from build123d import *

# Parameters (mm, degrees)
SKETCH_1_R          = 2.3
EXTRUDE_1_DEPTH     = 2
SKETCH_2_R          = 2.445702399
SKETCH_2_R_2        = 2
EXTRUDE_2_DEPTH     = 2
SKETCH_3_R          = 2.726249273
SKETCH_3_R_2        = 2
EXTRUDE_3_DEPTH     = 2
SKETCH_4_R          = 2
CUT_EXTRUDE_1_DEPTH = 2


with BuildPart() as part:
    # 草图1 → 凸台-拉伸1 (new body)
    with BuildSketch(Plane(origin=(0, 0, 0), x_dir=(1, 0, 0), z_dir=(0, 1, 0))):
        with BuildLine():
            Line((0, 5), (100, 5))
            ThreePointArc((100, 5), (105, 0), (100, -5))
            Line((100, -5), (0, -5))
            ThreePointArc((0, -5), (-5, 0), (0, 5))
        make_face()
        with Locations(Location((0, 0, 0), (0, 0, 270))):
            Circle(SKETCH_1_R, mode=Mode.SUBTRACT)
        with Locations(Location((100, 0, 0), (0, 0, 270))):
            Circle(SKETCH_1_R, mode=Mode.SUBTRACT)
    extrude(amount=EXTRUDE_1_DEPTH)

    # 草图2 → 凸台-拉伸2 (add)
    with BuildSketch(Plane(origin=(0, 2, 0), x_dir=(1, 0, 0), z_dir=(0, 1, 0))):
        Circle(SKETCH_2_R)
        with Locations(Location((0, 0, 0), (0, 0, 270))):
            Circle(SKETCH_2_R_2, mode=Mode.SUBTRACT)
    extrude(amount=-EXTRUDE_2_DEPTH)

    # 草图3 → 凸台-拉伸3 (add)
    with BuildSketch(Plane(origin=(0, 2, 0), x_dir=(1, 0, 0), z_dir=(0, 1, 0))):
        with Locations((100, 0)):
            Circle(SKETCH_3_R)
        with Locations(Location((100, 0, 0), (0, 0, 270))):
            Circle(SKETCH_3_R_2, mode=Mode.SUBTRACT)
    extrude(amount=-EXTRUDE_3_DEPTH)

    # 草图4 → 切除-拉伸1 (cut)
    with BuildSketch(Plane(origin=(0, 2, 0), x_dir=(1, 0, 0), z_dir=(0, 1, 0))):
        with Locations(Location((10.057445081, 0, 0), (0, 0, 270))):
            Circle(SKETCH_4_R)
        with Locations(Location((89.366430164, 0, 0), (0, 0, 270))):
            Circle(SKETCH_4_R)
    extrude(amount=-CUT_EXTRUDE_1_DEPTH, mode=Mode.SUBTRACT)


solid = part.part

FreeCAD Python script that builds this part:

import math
import FreeCAD as App
import Part
import Sketcher

V = App.Vector
Q = App.Units.Quantity

doc = App.newDocument("Part")
body = doc.addObject("PartDesign::Body", "Body")

sketch1 = body.newObject("Sketcher::SketchObject", "Sketch")
sketch1.AttachmentSupport = (doc.getObject("XZ_Plane"), [""])
sketch1.MapMode = "FlatFace"
sketch1.addGeometry([
    Part.LineSegment(V(100, -5, 0), V(0, -5, 0)),
    Part.ArcOfCircle(Part.Circle(V(0, 0, 0), V(0, 0, 1), 5), math.radians(90), math.radians(270)),
    Part.LineSegment(V(0, 5, 0), V(100, 5, 0)),
    Part.ArcOfCircle(Part.Circle(V(100, 0, 0), V(0, 0, 1), 5), math.radians(-90), math.radians(90)),
    Part.Circle(V(100, 0, 0), V(0, 0, 1), 2.3),
    Part.Circle(V(0, 0, 0), V(0, 0, 1), 2.3),
], False)
sketch1.addConstraint([
    Sketcher.Constraint("Tangent", 0, 2, 1, 2),
    Sketcher.Constraint("Tangent", 1, 1, 2, 1),
    Sketcher.Constraint("Tangent", 2, 2, 3, 2),
    Sketcher.Constraint("Tangent", 3, 1, 0, 1),
    Sketcher.Constraint("Horizontal", 0),
    Sketcher.Constraint("Horizontal", 2),
    Sketcher.Constraint("Coincident", 1, 3, -1, 1),
    Sketcher.Constraint("Coincident", 5, 3, -1, 1),
    Sketcher.Constraint("Coincident", 4, 3, 3, 3),
    Sketcher.Constraint("Equal", 4, 5),
    Sketcher.Constraint("Radius", 1, Q("5 mm")),
    Sketcher.Constraint("Diameter", 4, Q("4.6 mm")),
    Sketcher.Constraint("DistanceX", 0, 2, 0, 1, Q("100 mm")),
])
pad1 = body.newObject("PartDesign::Pad", "Pad")
pad1.Profile = sketch1
pad1.Length = 2
pad1.Reversed = True

sketch2 = body.newObject("Sketcher::SketchObject", "Sketch001")
sketch2.AttachmentSupport = (doc.getObject("XZ_Plane"), [""])
sketch2.MapMode = "FlatFace"
sketch2.AttachmentOffset = App.Placement(V(0, 0, -2), App.Rotation())
sketch2.addGeometry([
    Part.Circle(V(0, 0, 0), V(0, 0, 1), 2.4),
    Part.Circle(V(0, 0, 0), V(0, 0, 1), 2),
], False)
sketch2.addConstraint([
    Sketcher.Constraint("Coincident", 0, 3, -1, 1),
    Sketcher.Constraint("Coincident", 1, 3, -1, 1),
    Sketcher.Constraint("Diameter", 1, Q("4 mm")),
    Sketcher.Constraint("Diameter", 0, Q("4.891405 mm")),
])
pad2 = body.newObject("PartDesign::Pad", "Pad001")
pad2.Profile = sketch2
pad2.Length = 2

sketch3 = body.newObject("Sketcher::SketchObject", "Sketch002")
sketch3.AttachmentSupport = (doc.getObject("XZ_Plane"), [""])
sketch3.MapMode = "FlatFace"
sketch3.AttachmentOffset = App.Placement(V(0, 0, -2), App.Rotation())
sketch3.addGeometry([
    Part.Circle(V(100, 0, 0), V(0, 0, 1), 2.7),
    Part.Circle(V(100, 0, 0), V(0, 0, 1), 2),
], False)
sketch3.addConstraint([
    Sketcher.Constraint("Coincident", 1, 3, 0, 3),
    Sketcher.Constraint("PointOnObject", 0, 3, -1),
    Sketcher.Constraint("Diameter", 1, Q("4 mm")),
    Sketcher.Constraint("DistanceX", -1, 1, 0, 3, Q("100 mm")),
    Sketcher.Constraint("Diameter", 0, Q("5.452499 mm")),
])
pad3 = body.newObject("PartDesign::Pad", "Pad002")
pad3.Profile = sketch3
pad3.Length = 2

sketch4 = body.newObject("Sketcher::SketchObject", "Sketch003")
sketch4.AttachmentSupport = (doc.getObject("XZ_Plane"), [""])
sketch4.MapMode = "FlatFace"
sketch4.AttachmentOffset = App.Placement(V(0, 0, -2), App.Rotation())
sketch4.addGeometry([
    Part.Circle(V(10.1, 0, 0), V(0, 0, 1), 2),
    Part.Circle(V(89.4, 0, 0), V(0, 0, 1), 2),
], False)
sketch4.addConstraint([
    Sketcher.Constraint("Equal", 0, 1),
    Sketcher.Constraint("PointOnObject", 0, 3, -1),
    Sketcher.Constraint("PointOnObject", 1, 3, -1),
    Sketcher.Constraint("Diameter", 0, Q("4 mm")),
    Sketcher.Constraint("DistanceX", -1, 1, 1, 3, Q("89.36643 mm")),
    Sketcher.Constraint("DistanceX", -1, 1, 0, 3, Q("10.057445 mm")),
])
pocket1 = body.newObject("PartDesign::Pocket", "Pocket")
pocket1.Profile = sketch4
pocket1.Length = 2
pocket1.Reversed = True

doc.recompute()
